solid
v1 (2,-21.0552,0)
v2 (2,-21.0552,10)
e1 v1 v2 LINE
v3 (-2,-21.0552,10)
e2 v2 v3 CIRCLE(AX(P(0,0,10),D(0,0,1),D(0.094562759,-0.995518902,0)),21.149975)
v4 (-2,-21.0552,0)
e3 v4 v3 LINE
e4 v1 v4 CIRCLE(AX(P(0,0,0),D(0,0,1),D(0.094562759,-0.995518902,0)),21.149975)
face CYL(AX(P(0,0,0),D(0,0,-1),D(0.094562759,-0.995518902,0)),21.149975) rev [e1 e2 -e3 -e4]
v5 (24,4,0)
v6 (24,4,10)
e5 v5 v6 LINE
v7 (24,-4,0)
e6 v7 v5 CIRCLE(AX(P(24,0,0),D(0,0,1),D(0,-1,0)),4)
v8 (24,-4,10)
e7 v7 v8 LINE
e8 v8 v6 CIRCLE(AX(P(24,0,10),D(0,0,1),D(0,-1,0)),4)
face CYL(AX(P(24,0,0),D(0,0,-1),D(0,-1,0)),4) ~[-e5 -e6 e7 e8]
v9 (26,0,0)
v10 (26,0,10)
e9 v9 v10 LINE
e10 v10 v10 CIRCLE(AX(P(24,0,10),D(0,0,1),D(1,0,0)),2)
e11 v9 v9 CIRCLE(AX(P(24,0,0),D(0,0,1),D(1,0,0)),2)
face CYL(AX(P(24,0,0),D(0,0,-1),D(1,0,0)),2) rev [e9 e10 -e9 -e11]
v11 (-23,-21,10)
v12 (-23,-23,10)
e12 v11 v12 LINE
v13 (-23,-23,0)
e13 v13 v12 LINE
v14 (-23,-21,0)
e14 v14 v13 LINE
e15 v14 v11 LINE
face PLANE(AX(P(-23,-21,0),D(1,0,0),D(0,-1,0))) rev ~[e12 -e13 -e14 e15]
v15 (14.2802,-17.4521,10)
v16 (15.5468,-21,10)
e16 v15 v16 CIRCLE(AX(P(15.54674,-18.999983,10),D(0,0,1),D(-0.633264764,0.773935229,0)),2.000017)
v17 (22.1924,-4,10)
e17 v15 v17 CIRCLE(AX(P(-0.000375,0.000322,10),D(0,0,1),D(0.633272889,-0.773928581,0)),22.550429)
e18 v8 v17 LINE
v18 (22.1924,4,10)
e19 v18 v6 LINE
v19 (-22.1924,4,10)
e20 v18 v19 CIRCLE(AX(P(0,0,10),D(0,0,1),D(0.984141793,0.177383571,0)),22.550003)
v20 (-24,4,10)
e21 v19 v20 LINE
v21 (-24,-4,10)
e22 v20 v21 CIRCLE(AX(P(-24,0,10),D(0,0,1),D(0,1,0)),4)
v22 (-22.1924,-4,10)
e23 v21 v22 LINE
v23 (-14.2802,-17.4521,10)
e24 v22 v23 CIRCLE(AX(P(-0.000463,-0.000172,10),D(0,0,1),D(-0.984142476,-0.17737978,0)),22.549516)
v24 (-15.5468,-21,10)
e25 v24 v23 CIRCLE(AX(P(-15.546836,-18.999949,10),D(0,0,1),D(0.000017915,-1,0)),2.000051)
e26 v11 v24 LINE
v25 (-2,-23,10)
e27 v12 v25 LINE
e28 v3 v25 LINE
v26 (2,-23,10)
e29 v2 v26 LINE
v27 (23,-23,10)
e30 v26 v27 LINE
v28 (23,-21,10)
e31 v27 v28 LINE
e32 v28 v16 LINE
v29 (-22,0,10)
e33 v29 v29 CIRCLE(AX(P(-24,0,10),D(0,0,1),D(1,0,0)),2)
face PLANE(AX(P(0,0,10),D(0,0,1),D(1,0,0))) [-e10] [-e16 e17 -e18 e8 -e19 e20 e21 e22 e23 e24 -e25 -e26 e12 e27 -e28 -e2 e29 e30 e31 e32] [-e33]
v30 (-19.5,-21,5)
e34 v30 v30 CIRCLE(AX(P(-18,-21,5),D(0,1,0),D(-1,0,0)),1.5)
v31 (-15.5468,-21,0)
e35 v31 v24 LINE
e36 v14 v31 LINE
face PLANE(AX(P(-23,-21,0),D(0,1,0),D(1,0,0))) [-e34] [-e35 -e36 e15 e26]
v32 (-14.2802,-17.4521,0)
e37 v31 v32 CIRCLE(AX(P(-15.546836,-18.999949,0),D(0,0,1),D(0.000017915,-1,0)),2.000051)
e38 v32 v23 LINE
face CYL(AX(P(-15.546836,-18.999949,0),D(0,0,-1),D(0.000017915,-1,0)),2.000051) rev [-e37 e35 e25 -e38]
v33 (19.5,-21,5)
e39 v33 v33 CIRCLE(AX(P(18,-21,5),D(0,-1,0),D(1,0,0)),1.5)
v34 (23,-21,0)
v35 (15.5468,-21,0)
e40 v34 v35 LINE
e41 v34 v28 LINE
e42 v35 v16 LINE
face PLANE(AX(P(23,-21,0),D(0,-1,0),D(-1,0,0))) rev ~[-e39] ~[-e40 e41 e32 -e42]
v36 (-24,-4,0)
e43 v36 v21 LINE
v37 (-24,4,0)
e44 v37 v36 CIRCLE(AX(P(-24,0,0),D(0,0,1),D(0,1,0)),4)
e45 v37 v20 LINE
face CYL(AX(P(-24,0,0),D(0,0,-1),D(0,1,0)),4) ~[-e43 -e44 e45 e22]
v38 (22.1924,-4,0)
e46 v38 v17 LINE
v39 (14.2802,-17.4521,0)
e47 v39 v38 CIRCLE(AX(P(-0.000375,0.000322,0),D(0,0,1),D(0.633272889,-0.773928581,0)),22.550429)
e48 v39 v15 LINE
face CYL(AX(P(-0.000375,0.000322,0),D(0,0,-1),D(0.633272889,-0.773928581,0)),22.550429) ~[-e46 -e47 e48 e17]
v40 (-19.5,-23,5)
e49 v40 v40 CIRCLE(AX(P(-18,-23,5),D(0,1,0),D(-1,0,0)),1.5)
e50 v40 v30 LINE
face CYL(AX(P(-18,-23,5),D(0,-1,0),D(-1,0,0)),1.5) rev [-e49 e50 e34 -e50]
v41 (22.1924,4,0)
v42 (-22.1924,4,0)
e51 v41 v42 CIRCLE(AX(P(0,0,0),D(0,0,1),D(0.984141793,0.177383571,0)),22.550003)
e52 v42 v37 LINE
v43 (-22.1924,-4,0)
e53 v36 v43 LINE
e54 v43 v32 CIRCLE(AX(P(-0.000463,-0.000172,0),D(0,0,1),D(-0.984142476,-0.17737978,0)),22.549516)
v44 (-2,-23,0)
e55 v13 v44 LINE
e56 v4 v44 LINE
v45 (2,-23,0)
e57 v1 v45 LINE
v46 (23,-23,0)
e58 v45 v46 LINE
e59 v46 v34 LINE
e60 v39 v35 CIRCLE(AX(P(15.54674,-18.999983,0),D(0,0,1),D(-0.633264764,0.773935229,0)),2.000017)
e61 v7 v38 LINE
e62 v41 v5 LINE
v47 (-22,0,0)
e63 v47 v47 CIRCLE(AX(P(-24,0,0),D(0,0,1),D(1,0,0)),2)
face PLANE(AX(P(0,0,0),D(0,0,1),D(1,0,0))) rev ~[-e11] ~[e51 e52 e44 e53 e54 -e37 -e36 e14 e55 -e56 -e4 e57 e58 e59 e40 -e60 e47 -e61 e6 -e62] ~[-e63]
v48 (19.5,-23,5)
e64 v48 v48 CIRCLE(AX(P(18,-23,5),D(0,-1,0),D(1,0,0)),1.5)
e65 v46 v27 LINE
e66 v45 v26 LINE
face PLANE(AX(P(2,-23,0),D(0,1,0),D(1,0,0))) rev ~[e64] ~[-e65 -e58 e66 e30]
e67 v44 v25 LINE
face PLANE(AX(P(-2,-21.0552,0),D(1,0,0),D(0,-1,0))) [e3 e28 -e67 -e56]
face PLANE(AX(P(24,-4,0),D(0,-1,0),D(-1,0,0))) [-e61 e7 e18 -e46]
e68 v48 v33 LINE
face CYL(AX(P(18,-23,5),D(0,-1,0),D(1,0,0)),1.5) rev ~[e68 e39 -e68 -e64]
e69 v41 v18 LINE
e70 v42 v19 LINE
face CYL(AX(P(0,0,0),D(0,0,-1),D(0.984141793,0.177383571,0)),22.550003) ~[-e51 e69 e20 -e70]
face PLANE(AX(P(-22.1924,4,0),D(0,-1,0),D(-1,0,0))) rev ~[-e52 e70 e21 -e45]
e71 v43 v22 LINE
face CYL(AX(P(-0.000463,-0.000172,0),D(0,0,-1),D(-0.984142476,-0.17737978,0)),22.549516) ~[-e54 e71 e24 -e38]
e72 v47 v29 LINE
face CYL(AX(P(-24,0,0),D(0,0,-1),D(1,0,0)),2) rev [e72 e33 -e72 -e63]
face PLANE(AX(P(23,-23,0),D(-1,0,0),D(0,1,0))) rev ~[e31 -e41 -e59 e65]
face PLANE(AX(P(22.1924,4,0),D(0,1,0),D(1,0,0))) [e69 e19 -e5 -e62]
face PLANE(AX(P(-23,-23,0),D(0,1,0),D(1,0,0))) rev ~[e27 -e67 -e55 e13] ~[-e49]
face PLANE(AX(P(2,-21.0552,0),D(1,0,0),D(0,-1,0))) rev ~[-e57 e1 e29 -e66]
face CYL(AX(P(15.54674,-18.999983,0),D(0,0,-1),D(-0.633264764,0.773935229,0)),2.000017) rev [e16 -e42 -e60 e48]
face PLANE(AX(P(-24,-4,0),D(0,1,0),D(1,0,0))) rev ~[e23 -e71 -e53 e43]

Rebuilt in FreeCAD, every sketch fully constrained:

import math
import FreeCAD as App
import Part
import Sketcher

V = App.Vector

doc = App.newDocument("Part")
body = doc.addObject("PartDesign::Body", "Body")

# Sketch on XY plane
sketch1 = body.newObject("Sketcher::SketchObject", "Sketch")
sketch1.AttachmentSupport = (doc.getObject("XY_Plane"), [""])
sketch1.MapMode = "FlatFace"
sketch1.addGeometry(Part.LineSegment(V(-15.5, -21, 0), V(-23, -21, 0)), False)
sketch1.addGeometry(Part.LineSegment(V(-23, -21, 0), V(-23, -23, 0)), False)
sketch1.addGeometry(Part.LineSegment(V(-23, -23, 0), V(-2, -23, 0)), False)
sketch1.addGeometry(Part.LineSegment(V(-2, -23, 0), V(-2, -21.1, 0)), False)
sketch1.addGeometry(Part.ArcOfCircle(Part.Circle(V(0, 0, 0), V(0, 0, 1), 21.1), math.radians(-85), math.radians(265)), False)
sketch1.addGeometry(Part.LineSegment(V(2, -21.1, 0), V(2, -23, 0)), False)
sketch1.addGeometry(Part.LineSegment(V(2, -23, 0), V(23, -23, 0)), False)
sketch1.addGeometry(Part.LineSegment(V(23, -23, 0), V(23, -21, 0)), False)
sketch1.addGeometry(Part.LineSegment(V(23, -21, 0), V(15.5, -21, 0)), False)
sketch1.addGeometry(Part.ArcOfCircle(Part.Circle(V(15.5, -19, 0), V(0, 0, 1), 2), math.radians(129), math.radians(270)), False)
sketch1.addGeometry(Part.ArcOfCircle(Part.Circle(V(0, 0, 0), V(0, 0, 1), 22.6), math.radians(-51), math.radians(-10)), False)
sketch1.addGeometry(Part.LineSegment(V(22.2, -4, 0), V(24, -4, 0)), False)
sketch1.addGeometry(Part.ArcOfCircle(Part.Circle(V(24, 0, 0), V(0, 0, 1), 4), math.radians(-90), math.radians(90)), False)
sketch1.addGeometry(Part.LineSegment(V(24, 4, 0), V(22.2, 4, 0)), False)
sketch1.addGeometry(Part.ArcOfCircle(Part.Circle(V(0, 0, 0), V(0, 0, 1), 22.6), math.radians(10), math.radians(170)), False)
sketch1.addGeometry(Part.LineSegment(V(-22.2, 4, 0), V(-24, 4, 0)), False)
sketch1.addGeometry(Part.ArcOfCircle(Part.Circle(V(-24, 0, 0), V(0, 0, 1), 4), math.radians(90), math.radians(270)), False)
sketch1.addGeometry(Part.LineSegment(V(-24, -4, 0), V(-22.2, -4, 0)), False)
sketch1.addGeometry(Part.ArcOfCircle(Part.Circle(V(0, 0, 0), V(0, 0, 1), 22.5), math.radians(-170), math.radians(-129)), False)
sketch1.addGeometry(Part.ArcOfCircle(Part.Circle(V(-15.5, -19, 0), V(0, 0, 1), 2), math.radians(-90), math.radians(51)), False)
sketch1.addGeometry(Part.Circle(V(-24, 0, 0), V(0, 0, 1), 2), False)
sketch1.addGeometry(Part.Circle(V(24, 0, 0), V(0, 0, 1), 2), False)
sketch1.addConstraint(Sketcher.Constraint("Coincident", 0, 2, 1, 1))
sketch1.addConstraint(Sketcher.Constraint("Coincident", 1, 2, 2, 1))
sketch1.addConstraint(Sketcher.Constraint("Coincident", 2, 2, 3, 1))
sketch1.addConstraint(Sketcher.Constraint("Coincident", 3, 2, 4, 2))
sketch1.addConstraint(Sketcher.Constraint("Coincident", 4, 1, 5, 1))
sketch1.addConstraint(Sketcher.Constraint("Coincident", 5, 2, 6, 1))
sketch1.addConstraint(Sketcher.Constraint("Coincident", 6, 2, 7, 1))
sketch1.addConstraint(Sketcher.Constraint("Coincident", 7, 2, 8, 1))
sketch1.addConstraint(Sketcher.Constraint("Tangent", 8, 2, 9, 2))
sketch1.addConstraint(Sketcher.Constraint("Tangent", 9, 1, 10, 1))
sketch1.addConstraint(Sketcher.Constraint("Coincident", 10, 2, 11, 1))
sketch1.addConstraint(Sketcher.Constraint("Tangent", 11, 2, 12, 1))
sketch1.addConstraint(Sketcher.Constraint("Tangent", 12, 2, 13, 1))
sketch1.addConstraint(Sketcher.Constraint("Coincident", 13, 2, 14, 1))
sketch1.addConstraint(Sketcher.Constraint("Coincident", 14, 2, 15, 1))
sketch1.addConstraint(Sketcher.Constraint("Tangent", 15, 2, 16, 1))
sketch1.addConstraint(Sketcher.Constraint("Tangent", 16, 2, 17, 1))
sketch1.addConstraint(Sketcher.Constraint("Coincident", 17, 2, 18, 1))
sketch1.addConstraint(Sketcher.Constraint("Tangent", 18, 2, 19, 2))
sketch1.addConstraint(Sketcher.Constraint("Tangent", 19, 1, 0, 1))
sketch1.addConstraint(Sketcher.Constraint("Horizontal", 0))
sketch1.addConstraint(Sketcher.Constraint("Vertical", 1))
sketch1.addConstraint(Sketcher.Constraint("Horizontal", 2))
sketch1.addConstraint(Sketcher.Constraint("Vertical", 3))
sketch1.addConstraint(Sketcher.Constraint("Vertical", 5))
sketch1.addConstraint(Sketcher.Constraint("Horizontal", 6))
sketch1.addConstraint(Sketcher.Constraint("Vertical", 7))
sketch1.addConstraint(Sketcher.Constraint("Horizontal", 8))
sketch1.addConstraint(Sketcher.Constraint("Horizontal", 11))
sketch1.addConstraint(Sketcher.Constraint("Horizontal", 13))
sketch1.addConstraint(Sketcher.Constraint("Horizontal", 15))
sketch1.addConstraint(Sketcher.Constraint("Horizontal", 17))
sketch1.addConstraint(Sketcher.Constraint("Coincident", 4, 3, -1, 1))
sketch1.addConstraint(Sketcher.Constraint("Coincident", 10, 3, -1, 1))
sketch1.addConstraint(Sketcher.Constraint("Coincident", 14, 3, -1, 1))
sketch1.addConstraint(Sketcher.Constraint("Coincident", 18, 3, -1, 1))
sketch1.addConstraint(Sketcher.Constraint("Coincident", 20, 3, 16, 3))
sketch1.addConstraint(Sketcher.Constraint("Coincident", 21, 3, 12, 3))
sketch1.addConstraint(Sketcher.Constraint("Equal", 10, 14))
sketch1.addConstraint(Sketcher.Constraint("Equal", 12, 16))
sketch1.addConstraint(Sketcher.Constraint("Equal", 14, 18))
sketch1.addConstraint(Sketcher.Constraint("Equal", 9, 19))
sketch1.addConstraint(Sketcher.Constraint("Equal", 19, 20))
sketch1.addConstraint(Sketcher.Constraint("Equal", 20, 21))
sketch1.addConstraint(Sketcher.Constraint("Symmetric", 12, 3, 16, 3, -1, 1))
sketch1.addConstraint(Sketcher.Constraint("Symmetric", 2, 2, 5, 2, -2))
sketch1.addConstraint(Sketcher.Constraint("Symmetric", 0, 2, 7, 2, -2))
sketch1.addConstraint(Sketcher.Constraint("PointOnObject", 12, 3, -1))
sketch1.addConstraint(Sketcher.Constraint("Diameter", 20, 4.0))
sketch1.addConstraint(Sketcher.Constraint("Radius", 12, 4.0))
sketch1.addConstraint(Sketcher.Constraint("DistanceY", 1, 2, 1, 1, 2.0))
sketch1.addConstraint(Sketcher.Constraint("Radius", 4, 21.15))
sketch1.addConstraint(Sketcher.Constraint("Radius", 10, 22.55))
sketch1.addConstraint(Sketcher.Constraint("DistanceX", -1, 1, 12, 3, 24.0))
sketch1.addConstraint(Sketcher.Constraint("DistanceX", 0, 2, -1, 1, 23.0))
sketch1.addConstraint(Sketcher.Constraint("DistanceY", 1, 2, -1, 1, 23.0))
sketch1.addConstraint(Sketcher.Constraint("DistanceX", 2, 2, -1, 1, 2.0))
pad1 = body.newObject("PartDesign::Pad", "Pad")
pad1.Profile = sketch1
pad1.Length = 10

# Sketch on XZ plane
sketch2 = body.newObject("Sketcher::SketchObject", "Sketch001")
sketch2.AttachmentSupport = (doc.getObject("XZ_Plane"), [""])
sketch2.MapMode = "FlatFace"
sketch2.AttachmentOffset = App.Placement(V(0, 0, 23), App.Rotation())
sketch2.addGeometry(Part.Circle(V(18, 5, 0), V(0, 0, 1), 1.5), False)
sketch2.addConstraint(Sketcher.Constraint("Diameter", 0, 3.0))
sketch2.addConstraint(Sketcher.Constraint("DistanceX", -1, 1, 0, 3, 18.0))
sketch2.addConstraint(Sketcher.Constraint("DistanceY", -1, 1, 0, 3, 5.0))
pocket1 = body.newObject("PartDesign::Pocket", "Pocket")
pocket1.Profile = sketch2
pocket1.Length = 2
doc.recompute()

mirrored = body.newObject("PartDesign::Mirrored", "Mirrored")
mirrored.Originals = [pocket1]
mirrored.MirrorPlane = (doc.getObject("YZ_Plane"), [""])
body.Tip = mirrored

doc.recompute()
